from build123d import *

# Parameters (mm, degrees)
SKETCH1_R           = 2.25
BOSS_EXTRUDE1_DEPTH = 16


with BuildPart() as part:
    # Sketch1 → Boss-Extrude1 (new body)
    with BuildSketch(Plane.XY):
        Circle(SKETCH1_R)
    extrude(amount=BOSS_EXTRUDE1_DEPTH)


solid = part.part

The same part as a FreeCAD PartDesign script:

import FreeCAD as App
import Part
import Sketcher
from FreeCAD import Vector
Q = App.Units.Quantity

doc = App.newDocument("Part")
body = doc.addObject("PartDesign::Body", "Body")

sketch1 = body.newObject("Sketcher::SketchObject", "Sketch")
sketch1.AttachmentSupport = (doc.getObject("XY_Plane"), [""])
sketch1.MapMode = "FlatFace"
sketch1.addGeometry(Part.Circle(Vector(0, 0, 0), Vector(0, 0, 1), 2.2), False)
sketch1.addConstraint([
    Sketcher.Constraint("Coincident", 0, 3, -1, 1),
    Sketcher.Constraint("Diameter", 0, Q("4.5 mm")),
])
pad1 = body.newObject("PartDesign::Pad", "Pad")
pad1.Profile = sketch1
pad1.Length = 16

doc.recompute()
